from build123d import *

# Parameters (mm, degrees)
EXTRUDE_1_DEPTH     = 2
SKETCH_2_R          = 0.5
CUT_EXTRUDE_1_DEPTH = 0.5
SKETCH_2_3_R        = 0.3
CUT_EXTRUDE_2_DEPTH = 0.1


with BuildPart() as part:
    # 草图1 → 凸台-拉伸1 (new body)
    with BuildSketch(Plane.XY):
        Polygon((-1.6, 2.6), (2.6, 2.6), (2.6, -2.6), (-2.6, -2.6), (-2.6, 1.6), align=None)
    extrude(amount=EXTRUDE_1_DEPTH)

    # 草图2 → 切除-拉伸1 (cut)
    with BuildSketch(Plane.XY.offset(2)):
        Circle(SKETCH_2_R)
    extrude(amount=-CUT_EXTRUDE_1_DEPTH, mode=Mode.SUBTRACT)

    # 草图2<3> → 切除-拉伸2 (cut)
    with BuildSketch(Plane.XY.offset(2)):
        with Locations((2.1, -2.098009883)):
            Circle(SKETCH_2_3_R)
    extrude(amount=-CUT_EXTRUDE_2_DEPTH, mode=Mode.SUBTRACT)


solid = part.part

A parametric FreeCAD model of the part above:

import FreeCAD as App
import Part
import Sketcher
Q = App.Units.Quantity


def add_polygon(sketch, points):
    """Adds a closed chain of lines whose ends are joined by coincident constraints."""
    first, n = sketch.GeometryCount, len(points)
    for a, b in zip(points, points[1:] + points[:1]):
        sketch.addGeometry(Part.LineSegment(App.Vector(*a, 0), App.Vector(*b, 0)), False)
    for i in range(n):
        sketch.addConstraint(Sketcher.Constraint("Coincident", first + i, 2, first + (i + 1) % n, 1))

doc = App.newDocument("Part")
body = doc.addObject("PartDesign::Body", "Body")

# Sketch on XY plane
sketch1 = body.newObject("Sketcher::SketchObject", "Sketch")
sketch1.AttachmentSupport = (doc.getObject("XY_Plane"), [""])
sketch1.MapMode = "FlatFace"
add_polygon(sketch1, [(2.6, 2.6), (-1.6, 2.6), (-2.6, 1.6), (-2.6, -2.6), (2.6, -2.6)])  # lines 0-4
sketch1.addConstraint(Sketcher.Constraint("Horizontal", 0))
sketch1.addConstraint(Sketcher.Constraint("Vertical", 2))
sketch1.addConstraint(Sketcher.Constraint("Horizontal", 3))
sketch1.addConstraint(Sketcher.Constraint("Vertical", 4))
sketch1.addConstraint(Sketcher.Constraint("Symmetric", 2, 2, 4, 2, -1, 1))
sketch1.addConstraint(Sketcher.Constraint("Equal", 0, 2))
sketch1.addConstraint(Sketcher.Constraint("Equal", 3, 4))
sketch1.addConstraint(Sketcher.Constraint("DistanceX", 0, 2, 0, 1, Q("4.2 mm")))
sketch1.addConstraint(Sketcher.Constraint("DistanceX", 3, 1, 3, 2, Q("5.2 mm")))
pad1 = body.newObject("PartDesign::Pad", "Pad")
pad1.Profile = sketch1
pad1.Length = 2

# Sketch on XY plane
sketch2 = body.newObject("Sketcher::SketchObject", "Sketch001")
sketch2.AttachmentSupport = (doc.getObject("XY_Plane"), [""])
sketch2.MapMode = "FlatFace"
sketch2.AttachmentOffset = App.Placement(App.Vector(0, 0, 2), App.Rotation())
sketch2.addGeometry(Part.Circle(App.Vector(0, 0, 0), App.Vector(0, 0, 1), 0.5), False)
sketch2.addConstraint(Sketcher.Constraint("Coincident", 0, 3, -1, 1))
sketch2.addConstraint(Sketcher.Constraint("Diameter", 0, Q("1 mm")))
pocket1 = body.newObject("PartDesign::Pocket", "Pocket")
pocket1.Profile = sketch2
pocket1.Length = 0.5

# Sketch on XY plane
sketch3 = body.newObject("Sketcher::SketchObject", "Sketch002")
sketch3.AttachmentSupport = (doc.getObject("XY_Plane"), [""])
sketch3.MapMode = "FlatFace"
sketch3.AttachmentOffset = App.Placement(App.Vector(0, 0, 2), App.Rotation())
sketch3.addGeometry(Part.Circle(App.Vector(2.1, -2.1, 0), App.Vector(0, 0, 1), 0.3), False)
sketch3.addConstraint(Sketcher.Constraint("Diameter", 0, Q("0.6 mm")))
sketch3.addConstraint(Sketcher.Constraint("DistanceX", -1, 1, 0, 3, Q("2.1 mm")))
sketch3.addConstraint(Sketcher.Constraint("DistanceY", 0, 3, -1, 1, Q("2.09801 mm")))
pocket2 = body.newObject("PartDesign::Pocket", "Pocket001")
pocket2.Profile = sketch3
pocket2.Length = 0.1

doc.recompute()
